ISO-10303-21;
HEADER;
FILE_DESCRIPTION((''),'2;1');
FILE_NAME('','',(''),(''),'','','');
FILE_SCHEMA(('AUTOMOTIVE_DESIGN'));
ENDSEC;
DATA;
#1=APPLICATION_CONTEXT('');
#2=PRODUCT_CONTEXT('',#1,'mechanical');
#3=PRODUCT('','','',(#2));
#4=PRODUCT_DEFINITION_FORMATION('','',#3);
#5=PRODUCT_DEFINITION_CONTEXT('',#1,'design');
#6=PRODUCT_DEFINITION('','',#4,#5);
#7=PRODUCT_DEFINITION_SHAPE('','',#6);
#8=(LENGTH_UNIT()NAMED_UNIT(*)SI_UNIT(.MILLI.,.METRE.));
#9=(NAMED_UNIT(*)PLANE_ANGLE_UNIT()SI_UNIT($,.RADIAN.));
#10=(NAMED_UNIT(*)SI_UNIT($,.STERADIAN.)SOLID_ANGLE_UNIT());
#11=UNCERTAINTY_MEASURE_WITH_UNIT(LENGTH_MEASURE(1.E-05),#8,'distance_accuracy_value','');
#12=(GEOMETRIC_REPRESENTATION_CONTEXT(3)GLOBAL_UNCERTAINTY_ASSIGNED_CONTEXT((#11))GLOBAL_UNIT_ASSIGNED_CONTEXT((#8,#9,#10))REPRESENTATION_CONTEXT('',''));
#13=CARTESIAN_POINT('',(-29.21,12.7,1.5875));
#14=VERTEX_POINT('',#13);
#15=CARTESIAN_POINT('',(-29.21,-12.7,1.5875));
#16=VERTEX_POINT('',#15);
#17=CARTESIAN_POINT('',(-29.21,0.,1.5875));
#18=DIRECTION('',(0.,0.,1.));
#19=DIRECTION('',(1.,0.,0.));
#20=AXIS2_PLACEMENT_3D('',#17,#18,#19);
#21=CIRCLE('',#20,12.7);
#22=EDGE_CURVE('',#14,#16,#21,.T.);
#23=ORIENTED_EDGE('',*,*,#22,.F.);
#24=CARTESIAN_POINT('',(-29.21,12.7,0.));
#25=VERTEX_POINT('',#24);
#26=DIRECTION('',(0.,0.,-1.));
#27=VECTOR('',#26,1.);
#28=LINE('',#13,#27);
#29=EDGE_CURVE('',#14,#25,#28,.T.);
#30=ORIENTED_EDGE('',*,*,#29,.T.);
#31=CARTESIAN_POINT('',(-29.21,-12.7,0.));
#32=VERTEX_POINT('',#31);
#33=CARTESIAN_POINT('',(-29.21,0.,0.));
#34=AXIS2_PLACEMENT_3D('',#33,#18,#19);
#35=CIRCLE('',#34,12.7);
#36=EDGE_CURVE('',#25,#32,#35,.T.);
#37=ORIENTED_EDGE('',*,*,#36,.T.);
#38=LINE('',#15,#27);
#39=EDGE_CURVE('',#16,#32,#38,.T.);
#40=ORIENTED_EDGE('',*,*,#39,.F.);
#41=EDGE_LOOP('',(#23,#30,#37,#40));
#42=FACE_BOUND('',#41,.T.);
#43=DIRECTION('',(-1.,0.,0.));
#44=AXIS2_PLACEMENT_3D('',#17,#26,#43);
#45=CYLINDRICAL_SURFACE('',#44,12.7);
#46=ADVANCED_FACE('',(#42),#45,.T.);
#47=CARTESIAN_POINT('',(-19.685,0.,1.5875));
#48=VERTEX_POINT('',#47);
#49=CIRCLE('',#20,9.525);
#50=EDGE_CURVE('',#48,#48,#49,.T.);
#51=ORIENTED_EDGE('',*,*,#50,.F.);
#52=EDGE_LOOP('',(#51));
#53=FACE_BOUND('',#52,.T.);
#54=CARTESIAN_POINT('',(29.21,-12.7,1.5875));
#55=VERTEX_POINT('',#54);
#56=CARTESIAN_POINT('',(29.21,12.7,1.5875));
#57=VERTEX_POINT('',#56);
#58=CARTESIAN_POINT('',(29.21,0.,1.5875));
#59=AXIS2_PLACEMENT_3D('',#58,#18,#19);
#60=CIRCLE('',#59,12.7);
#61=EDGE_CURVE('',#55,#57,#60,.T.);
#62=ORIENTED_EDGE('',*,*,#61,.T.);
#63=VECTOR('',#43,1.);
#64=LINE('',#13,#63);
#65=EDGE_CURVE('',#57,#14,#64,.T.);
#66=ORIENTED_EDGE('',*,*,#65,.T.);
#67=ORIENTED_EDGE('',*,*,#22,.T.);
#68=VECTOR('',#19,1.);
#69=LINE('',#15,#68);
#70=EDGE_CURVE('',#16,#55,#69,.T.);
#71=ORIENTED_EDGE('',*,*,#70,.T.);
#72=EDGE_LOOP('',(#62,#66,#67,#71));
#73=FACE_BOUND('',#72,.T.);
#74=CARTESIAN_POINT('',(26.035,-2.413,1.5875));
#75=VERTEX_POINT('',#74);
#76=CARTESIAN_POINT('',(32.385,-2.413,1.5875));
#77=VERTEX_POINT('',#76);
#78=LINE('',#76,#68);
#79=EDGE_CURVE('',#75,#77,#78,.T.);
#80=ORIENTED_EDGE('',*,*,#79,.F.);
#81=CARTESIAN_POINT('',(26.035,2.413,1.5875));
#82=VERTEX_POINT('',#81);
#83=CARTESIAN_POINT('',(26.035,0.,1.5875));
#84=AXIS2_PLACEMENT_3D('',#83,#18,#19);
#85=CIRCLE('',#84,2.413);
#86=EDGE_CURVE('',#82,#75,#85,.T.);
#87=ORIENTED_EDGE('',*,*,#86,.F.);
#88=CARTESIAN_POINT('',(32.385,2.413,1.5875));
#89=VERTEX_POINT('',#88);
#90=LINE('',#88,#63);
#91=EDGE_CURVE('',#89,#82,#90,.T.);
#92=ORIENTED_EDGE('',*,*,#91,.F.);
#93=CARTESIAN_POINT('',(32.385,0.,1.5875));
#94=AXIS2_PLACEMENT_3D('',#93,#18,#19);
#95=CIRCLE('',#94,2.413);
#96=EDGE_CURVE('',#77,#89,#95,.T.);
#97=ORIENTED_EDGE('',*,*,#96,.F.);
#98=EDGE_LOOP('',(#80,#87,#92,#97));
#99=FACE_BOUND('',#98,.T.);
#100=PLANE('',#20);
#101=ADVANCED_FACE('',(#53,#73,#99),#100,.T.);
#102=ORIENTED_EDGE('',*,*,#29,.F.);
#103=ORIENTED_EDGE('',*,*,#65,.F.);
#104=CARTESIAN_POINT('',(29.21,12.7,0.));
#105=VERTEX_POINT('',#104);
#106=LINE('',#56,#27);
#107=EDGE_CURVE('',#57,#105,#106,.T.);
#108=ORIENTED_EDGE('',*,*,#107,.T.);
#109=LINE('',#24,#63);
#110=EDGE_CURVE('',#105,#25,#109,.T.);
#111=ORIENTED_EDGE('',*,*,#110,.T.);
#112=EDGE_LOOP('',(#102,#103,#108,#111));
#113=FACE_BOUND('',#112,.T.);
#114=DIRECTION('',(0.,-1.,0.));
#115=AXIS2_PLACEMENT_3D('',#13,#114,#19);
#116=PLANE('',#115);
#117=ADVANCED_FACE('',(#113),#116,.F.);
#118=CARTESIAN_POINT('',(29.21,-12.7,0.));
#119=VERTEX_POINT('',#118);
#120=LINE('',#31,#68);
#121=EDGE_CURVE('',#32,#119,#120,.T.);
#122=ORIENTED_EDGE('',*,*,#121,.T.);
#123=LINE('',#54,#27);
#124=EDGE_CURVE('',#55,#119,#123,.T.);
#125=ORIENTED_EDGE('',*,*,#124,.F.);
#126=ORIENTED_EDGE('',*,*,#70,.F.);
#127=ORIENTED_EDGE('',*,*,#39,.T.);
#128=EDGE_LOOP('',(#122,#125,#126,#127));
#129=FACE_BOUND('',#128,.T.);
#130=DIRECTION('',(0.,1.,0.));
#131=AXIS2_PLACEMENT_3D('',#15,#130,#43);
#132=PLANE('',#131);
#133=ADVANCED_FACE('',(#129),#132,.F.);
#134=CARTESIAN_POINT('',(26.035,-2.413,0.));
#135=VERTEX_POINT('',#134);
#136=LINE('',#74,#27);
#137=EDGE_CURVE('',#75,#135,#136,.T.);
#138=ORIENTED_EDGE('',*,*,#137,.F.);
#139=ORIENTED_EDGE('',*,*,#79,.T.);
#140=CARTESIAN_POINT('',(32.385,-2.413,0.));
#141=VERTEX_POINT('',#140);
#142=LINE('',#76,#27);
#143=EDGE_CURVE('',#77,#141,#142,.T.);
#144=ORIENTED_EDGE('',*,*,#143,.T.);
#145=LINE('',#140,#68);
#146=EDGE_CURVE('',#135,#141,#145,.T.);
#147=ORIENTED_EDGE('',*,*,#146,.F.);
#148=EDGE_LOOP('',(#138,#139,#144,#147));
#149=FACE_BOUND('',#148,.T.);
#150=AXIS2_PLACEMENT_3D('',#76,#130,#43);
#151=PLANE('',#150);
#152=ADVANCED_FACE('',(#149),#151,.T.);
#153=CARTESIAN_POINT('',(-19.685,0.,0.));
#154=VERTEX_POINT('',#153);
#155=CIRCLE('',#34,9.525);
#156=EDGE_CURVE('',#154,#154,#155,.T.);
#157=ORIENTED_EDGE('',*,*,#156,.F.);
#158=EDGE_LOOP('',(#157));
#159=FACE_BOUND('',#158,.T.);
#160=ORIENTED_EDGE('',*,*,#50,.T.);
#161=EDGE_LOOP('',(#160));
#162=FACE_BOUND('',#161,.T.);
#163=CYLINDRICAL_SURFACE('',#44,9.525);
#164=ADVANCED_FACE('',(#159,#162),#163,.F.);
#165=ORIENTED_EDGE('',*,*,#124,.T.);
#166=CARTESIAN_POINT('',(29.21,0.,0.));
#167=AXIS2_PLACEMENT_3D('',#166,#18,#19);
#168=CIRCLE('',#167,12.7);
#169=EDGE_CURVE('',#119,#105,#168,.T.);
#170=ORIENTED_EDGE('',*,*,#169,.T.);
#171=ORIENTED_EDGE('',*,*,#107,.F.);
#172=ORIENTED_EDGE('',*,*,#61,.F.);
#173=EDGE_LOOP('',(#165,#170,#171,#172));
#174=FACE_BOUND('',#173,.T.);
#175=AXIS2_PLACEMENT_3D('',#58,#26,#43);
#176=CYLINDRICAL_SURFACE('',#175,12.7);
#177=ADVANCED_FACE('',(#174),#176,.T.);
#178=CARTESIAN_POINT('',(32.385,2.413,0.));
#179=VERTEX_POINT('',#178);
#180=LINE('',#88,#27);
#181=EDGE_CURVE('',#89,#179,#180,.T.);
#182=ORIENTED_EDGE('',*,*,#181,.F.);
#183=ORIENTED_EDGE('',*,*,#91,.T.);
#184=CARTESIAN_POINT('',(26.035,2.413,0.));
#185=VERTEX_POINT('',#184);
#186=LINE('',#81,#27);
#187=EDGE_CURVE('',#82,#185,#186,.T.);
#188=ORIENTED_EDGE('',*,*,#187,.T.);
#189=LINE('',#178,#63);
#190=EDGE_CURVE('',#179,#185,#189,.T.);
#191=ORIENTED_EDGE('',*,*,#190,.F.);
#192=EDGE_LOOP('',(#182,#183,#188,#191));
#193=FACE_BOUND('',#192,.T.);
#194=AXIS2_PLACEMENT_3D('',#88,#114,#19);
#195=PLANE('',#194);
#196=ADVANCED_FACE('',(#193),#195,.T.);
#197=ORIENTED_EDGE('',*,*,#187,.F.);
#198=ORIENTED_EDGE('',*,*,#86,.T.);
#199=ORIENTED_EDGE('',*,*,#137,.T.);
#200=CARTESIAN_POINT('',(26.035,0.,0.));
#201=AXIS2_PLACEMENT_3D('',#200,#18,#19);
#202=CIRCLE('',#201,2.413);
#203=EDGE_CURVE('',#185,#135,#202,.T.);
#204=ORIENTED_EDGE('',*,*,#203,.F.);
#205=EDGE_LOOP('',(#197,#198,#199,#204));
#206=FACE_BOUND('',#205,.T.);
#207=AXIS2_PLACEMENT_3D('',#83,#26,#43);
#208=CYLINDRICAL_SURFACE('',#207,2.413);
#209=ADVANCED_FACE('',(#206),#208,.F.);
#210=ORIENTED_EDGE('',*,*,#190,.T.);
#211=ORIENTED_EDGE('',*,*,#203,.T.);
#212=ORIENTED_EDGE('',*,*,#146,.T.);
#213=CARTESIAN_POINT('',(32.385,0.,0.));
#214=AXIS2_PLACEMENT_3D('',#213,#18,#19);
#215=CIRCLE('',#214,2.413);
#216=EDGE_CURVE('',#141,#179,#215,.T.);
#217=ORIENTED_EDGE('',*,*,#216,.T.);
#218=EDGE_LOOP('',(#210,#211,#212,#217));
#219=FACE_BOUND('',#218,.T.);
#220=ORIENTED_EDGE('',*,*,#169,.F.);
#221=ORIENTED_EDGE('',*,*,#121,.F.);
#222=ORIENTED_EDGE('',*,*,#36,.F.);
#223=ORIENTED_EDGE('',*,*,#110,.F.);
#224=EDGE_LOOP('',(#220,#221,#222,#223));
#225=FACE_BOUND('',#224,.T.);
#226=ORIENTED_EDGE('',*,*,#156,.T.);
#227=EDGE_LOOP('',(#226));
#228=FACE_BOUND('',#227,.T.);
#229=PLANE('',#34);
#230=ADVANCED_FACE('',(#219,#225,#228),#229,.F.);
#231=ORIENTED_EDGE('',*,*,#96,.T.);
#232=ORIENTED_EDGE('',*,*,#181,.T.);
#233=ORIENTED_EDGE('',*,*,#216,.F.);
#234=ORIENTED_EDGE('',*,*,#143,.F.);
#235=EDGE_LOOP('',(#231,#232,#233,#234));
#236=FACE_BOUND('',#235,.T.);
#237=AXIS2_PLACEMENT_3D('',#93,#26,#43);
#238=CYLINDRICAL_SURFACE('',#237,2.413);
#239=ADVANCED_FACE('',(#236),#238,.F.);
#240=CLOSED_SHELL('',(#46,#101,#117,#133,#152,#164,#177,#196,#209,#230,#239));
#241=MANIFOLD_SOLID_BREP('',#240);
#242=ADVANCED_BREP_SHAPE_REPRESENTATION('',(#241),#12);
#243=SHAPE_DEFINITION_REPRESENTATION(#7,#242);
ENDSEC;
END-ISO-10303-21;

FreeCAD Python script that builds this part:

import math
import FreeCAD as App
import Part
import Sketcher
from FreeCAD import Vector
Q = App.Units.Quantity

doc = App.newDocument("Part")
body = doc.addObject("PartDesign::Body", "Body")

# Sketch on XY plane
sketch1 = body.newObject("Sketcher::SketchObject", "Sketch")
sketch1.AttachmentSupport = (doc.getObject("XY_Plane"), [""])
sketch1.MapMode = "FlatFace"
sketch1.addGeometry(Part.LineSegment(Vector(29.21, 12.7, 0), Vector(-29.21, 12.7, 0)), False)
sketch1.addGeometry(Part.ArcOfCircle(Part.Circle(Vector(-29.21, 0, 0), Vector(0, 0, 1), 12.7), math.radians(90), math.radians(270)), False)
sketch1.addGeometry(Part.LineSegment(Vector(-29.21, -12.7, 0), Vector(29.21, -12.7, 0)), False)
sketch1.addGeometry(Part.ArcOfCircle(Part.Circle(Vector(29.21, 0, 0), Vector(0, 0, 1), 12.7), math.radians(-90), math.radians(90)), False)
sketch1.addGeometry(Part.LineSegment(Vector(32.385, -2.413, 0), Vector(26.035, -2.413, 0)), False)
sketch1.addGeometry(Part.ArcOfCircle(Part.Circle(Vector(26.035, 0, 0), Vector(0, 0, 1), 2.413), math.radians(90), math.radians(270)), False)
sketch1.addGeometry(Part.LineSegment(Vector(26.035, 2.413, 0), Vector(32.385, 2.413, 0)), False)
sketch1.addGeometry(Part.ArcOfCircle(Part.Circle(Vector(32.385, 0, 0), Vector(0, 0, 1), 2.413), math.radians(-90), math.radians(90)), False)
sketch1.addGeometry(Part.Circle(Vector(-29.21, 0, 0), Vector(0, 0, 1), 9.525), False)
sketch1.addConstraint(Sketcher.Constraint("Tangent", 0, 2, 1, 1))
sketch1.addConstraint(Sketcher.Constraint("Tangent", 1, 2, 2, 1))
sketch1.addConstraint(Sketcher.Constraint("Tangent", 2, 2, 3, 1))
sketch1.addConstraint(Sketcher.Constraint("Tangent", 3, 2, 0, 1))
sketch1.addConstraint(Sketcher.Constraint("Tangent", 4, 2, 5, 2))
sketch1.addConstraint(Sketcher.Constraint("Tangent", 5, 1, 6, 1))
sketch1.addConstraint(Sketcher.Constraint("Tangent", 6, 2, 7, 2))
sketch1.addConstraint(Sketcher.Constraint("Tangent", 7, 1, 4, 1))
sketch1.addConstraint(Sketcher.Constraint("Horizontal", 0))
sketch1.addConstraint(Sketcher.Constraint("Horizontal", 2))
sketch1.addConstraint(Sketcher.Constraint("Horizontal", 4))
sketch1.addConstraint(Sketcher.Constraint("Horizontal", 6))
sketch1.addConstraint(Sketcher.Constraint("Coincident", 8, 3, 1, 3))
sketch1.addConstraint(Sketcher.Constraint("Symmetric", 1, 3, 3, 3, -1, 1))
sketch1.addConstraint(Sketcher.Constraint("PointOnObject", 5, 3, -1))
sketch1.addConstraint(Sketcher.Constraint("Radius", 1, Q("0.5 in")))
sketch1.addConstraint(Sketcher.Constraint("Diameter", 8, Q("0.75 in")))
sketch1.addConstraint(Sketcher.Constraint("DistanceX", 0, 2, 0, 1, Q("2.3 in")))
sketch1.addConstraint(Sketcher.Constraint("Radius", 5, Q("0.095 in")))
sketch1.addConstraint(Sketcher.Constraint("DistanceX", 4, 2, 4, 1, Q("0.25 in")))
sketch1.addConstraint(Sketcher.Constraint("DistanceX", -1, 1, 5, 3, Q("1.025 in")))
pad1 = body.newObject("PartDesign::Pad", "Pad")
pad1.Profile = sketch1
pad1.Length = Q("0.0625 in")

doc.recompute()
